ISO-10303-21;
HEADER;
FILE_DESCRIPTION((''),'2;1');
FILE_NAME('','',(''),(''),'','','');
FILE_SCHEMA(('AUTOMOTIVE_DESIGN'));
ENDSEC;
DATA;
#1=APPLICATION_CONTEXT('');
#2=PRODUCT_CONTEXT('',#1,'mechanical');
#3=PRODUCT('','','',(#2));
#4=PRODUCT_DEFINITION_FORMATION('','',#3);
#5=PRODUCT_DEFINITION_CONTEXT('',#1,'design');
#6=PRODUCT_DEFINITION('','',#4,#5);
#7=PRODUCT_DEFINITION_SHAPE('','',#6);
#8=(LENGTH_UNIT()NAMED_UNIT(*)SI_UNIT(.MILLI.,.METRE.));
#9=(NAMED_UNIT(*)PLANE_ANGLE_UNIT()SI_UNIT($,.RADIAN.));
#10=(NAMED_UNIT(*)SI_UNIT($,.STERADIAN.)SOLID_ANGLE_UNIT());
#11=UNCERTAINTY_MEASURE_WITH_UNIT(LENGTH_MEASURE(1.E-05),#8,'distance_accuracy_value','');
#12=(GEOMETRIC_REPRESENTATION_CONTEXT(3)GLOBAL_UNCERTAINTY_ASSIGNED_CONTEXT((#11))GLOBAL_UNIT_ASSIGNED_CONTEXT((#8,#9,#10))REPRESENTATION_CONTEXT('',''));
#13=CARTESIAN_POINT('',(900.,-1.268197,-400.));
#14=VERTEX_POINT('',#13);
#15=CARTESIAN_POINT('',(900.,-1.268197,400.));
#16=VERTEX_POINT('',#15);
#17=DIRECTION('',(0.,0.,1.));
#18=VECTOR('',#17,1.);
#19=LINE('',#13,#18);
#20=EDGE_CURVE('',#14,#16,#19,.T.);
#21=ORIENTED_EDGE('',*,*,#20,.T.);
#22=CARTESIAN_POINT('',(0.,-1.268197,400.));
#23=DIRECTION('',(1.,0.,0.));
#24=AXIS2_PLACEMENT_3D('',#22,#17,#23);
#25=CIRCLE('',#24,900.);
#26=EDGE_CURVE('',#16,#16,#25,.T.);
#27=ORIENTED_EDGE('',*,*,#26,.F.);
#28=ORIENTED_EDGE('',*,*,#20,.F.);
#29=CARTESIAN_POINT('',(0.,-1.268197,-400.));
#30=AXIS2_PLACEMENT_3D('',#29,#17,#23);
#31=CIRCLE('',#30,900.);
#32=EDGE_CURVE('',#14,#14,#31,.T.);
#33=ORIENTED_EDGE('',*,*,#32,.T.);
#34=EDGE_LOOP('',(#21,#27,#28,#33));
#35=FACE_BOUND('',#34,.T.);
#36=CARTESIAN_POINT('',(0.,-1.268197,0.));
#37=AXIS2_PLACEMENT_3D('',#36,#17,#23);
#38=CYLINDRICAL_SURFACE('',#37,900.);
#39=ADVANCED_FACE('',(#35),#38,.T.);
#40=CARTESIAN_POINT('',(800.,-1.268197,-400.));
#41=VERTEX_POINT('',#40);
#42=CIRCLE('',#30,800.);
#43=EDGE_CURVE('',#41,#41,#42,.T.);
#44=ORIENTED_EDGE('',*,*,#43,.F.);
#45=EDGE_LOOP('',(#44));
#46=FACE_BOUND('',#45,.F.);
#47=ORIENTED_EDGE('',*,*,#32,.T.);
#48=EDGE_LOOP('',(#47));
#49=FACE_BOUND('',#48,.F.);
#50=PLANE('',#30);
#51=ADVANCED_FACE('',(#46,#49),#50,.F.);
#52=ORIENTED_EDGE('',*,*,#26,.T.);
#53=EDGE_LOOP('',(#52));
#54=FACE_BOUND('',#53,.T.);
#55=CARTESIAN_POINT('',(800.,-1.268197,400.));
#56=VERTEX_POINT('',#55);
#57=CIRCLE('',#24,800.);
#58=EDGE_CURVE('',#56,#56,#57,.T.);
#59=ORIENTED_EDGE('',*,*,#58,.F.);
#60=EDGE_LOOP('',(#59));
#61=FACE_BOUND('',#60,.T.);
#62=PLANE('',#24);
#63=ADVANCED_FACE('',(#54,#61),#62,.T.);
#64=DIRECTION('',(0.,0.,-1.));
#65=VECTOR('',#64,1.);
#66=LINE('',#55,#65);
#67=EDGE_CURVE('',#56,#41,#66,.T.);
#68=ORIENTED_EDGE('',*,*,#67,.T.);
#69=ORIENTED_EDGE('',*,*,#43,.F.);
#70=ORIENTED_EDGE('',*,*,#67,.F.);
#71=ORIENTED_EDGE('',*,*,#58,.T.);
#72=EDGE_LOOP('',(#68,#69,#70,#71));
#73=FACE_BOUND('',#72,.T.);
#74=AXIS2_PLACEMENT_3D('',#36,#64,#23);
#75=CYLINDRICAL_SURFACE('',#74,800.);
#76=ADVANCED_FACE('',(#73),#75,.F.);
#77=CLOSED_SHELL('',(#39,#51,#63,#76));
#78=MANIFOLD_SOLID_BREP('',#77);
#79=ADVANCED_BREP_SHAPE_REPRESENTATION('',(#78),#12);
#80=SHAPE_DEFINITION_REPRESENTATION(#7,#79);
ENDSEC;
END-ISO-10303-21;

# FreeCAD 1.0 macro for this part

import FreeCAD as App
import Part
import Sketcher
from FreeCAD import Vector

doc = App.newDocument("Part")
params = doc.addObject("Spreadsheet::Sheet", "Params")
for row, (alias, value) in enumerate([
    ("sketch1_diameter", "1800 mm"),
    ("sketch1_diameter2", "1600 mm"),
    ("pad1_length", "800 mm"),
], start=1):
    params.set(f"A{row}", alias)
    params.set(f"B{row}", "=" + value)
    params.setAlias(f"B{row}", alias)

body = doc.addObject("PartDesign::Body", "Body")

# Sketch on XY plane
sketch1 = doc.addObject("Sketcher::SketchObject", "Sketch")
body.addObject(sketch1)
sketch1.AttachmentSupport = (doc.XY_Plane, [""])
sketch1.MapMode = "FlatFace"
sketch1.addGeometry(Part.Circle(Vector(0, -1, 0), Vector(0, 0, 1), 900), False)
sketch1.addGeometry(Part.Circle(Vector(0, -1, 0), Vector(0, 0, 1), 800), False)
sketch1.addConstraint(Sketcher.Constraint("Coincident", 1, 3, 0, 3))
sketch1.addConstraint(Sketcher.Constraint("PointOnObject", 0, 3, -2))
sketch1.addConstraint(Sketcher.Constraint("Diameter", 0, 1800.0))
sketch1.addConstraint(Sketcher.Constraint("Diameter", 1, 1600.0))
sketch1.addConstraint(Sketcher.Constraint("DistanceY", 0, 3, -1, 1, 1.268197))
sketch1.setExpression("Constraints[2]", "Params.sketch1_diameter")
sketch1.setExpression("Constraints[3]", "Params.sketch1_diameter2")
pad1 = doc.addObject("PartDesign::Pad", "Pad")
body.addObject(pad1)
pad1.Profile = sketch1
pad1.setExpression("Length", "Params.pad1_length")
pad1.Midplane = True

doc.recompute()
